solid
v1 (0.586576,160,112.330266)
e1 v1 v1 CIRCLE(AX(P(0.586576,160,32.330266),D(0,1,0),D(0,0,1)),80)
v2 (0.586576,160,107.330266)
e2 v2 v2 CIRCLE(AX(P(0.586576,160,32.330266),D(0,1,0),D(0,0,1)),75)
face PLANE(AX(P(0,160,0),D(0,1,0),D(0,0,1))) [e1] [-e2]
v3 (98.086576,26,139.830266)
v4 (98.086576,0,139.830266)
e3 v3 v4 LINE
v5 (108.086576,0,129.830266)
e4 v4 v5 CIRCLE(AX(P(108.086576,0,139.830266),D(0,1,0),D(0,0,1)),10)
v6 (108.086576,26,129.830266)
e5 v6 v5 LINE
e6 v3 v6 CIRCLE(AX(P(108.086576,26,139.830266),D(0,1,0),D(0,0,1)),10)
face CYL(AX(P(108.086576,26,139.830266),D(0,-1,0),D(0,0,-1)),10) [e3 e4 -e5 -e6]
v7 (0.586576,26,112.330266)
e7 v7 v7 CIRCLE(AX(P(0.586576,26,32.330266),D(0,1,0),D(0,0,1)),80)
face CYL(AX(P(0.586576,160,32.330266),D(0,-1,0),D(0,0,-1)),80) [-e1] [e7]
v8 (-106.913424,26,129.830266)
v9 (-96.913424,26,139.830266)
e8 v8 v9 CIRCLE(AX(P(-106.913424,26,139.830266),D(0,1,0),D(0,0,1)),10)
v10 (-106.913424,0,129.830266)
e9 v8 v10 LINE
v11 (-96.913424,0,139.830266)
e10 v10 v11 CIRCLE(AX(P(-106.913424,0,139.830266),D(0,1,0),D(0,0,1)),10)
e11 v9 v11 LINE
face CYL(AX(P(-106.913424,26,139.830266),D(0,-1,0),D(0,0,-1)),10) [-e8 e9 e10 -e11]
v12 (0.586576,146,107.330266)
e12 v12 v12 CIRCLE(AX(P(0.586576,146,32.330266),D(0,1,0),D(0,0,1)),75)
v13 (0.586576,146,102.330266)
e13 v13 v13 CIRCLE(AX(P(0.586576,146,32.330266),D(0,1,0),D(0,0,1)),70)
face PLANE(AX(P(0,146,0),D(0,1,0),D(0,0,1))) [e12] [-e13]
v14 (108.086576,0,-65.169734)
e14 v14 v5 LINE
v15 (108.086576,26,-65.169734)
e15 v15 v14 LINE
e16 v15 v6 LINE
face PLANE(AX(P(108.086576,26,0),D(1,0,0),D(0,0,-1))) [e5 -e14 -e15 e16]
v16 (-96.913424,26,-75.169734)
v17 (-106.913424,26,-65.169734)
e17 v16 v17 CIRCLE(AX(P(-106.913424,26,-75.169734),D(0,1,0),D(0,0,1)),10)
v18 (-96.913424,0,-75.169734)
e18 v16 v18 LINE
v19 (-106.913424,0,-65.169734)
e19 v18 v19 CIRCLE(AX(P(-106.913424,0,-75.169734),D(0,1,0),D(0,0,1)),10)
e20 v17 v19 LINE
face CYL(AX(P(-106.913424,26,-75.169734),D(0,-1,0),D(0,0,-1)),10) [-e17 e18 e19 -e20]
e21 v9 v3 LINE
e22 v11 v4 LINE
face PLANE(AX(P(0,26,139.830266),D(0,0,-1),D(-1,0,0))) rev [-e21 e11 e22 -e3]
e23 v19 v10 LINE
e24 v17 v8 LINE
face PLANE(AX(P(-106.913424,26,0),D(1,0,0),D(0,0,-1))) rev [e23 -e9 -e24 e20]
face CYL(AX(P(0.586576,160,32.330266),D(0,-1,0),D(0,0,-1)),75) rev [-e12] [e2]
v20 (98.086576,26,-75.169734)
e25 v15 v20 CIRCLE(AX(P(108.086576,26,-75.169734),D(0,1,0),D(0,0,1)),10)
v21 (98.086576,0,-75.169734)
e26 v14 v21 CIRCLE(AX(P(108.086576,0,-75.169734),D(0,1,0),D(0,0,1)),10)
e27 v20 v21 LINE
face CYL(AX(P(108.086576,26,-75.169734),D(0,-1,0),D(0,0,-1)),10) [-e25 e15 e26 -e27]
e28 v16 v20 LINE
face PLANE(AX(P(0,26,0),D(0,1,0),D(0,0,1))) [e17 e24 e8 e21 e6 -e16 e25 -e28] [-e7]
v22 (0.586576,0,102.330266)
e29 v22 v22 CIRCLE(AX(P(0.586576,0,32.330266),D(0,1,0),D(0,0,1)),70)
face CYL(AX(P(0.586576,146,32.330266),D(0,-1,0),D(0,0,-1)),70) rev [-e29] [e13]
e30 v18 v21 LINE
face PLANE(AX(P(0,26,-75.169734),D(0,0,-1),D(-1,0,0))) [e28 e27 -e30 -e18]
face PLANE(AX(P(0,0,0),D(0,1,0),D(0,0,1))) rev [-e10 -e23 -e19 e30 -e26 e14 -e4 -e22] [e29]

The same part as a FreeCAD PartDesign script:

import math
import FreeCAD as App
import Part
import Sketcher

V = App.Vector

doc = App.newDocument("Part")
params = doc.addObject("Spreadsheet::Sheet", "Params")
for row, (alias, value) in enumerate([
    ("sketch1_diameter", "160 mm"),
    ("sketch1_radius", "10 mm"),
    ("sketch1_width", "195 mm"),
    ("pad1_length", "26 mm"),
    ("sketch2_diameter", "160 mm"),
    ("sketch2_diameter2", "150 mm"),
    ("pad2_length", "160 mm"),
    ("sketch3_diameter", "150 mm"),
    ("sketch3_diameter2", "140 mm"),
    ("pad3_length", "146 mm"),
], start=1):
    params.set(f"A{row}", alias)
    params.set(f"B{row}", "=" + value)
    params.setAlias(f"B{row}", alias)

body = doc.addObject("PartDesign::Body", "Body")

sketch1 = doc.addObject("Sketcher::SketchObject", "Sketch")
body.addObject(sketch1)
sketch1.AttachmentSupport = (doc.XZ_Plane, [""])
sketch1.MapMode = "FlatFace"
sketch1.addGeometry([
    Part.LineSegment(V(108, 130, 0), V(108, -65, 0)),
    Part.ArcOfCircle(Part.Circle(V(108, -75, 0), V(0, 0, 1), 10), math.radians(180), math.radians(450)),
    Part.LineSegment(V(98, -75, 0), V(-97, -75, 0)),
    Part.ArcOfCircle(Part.Circle(V(-107, -75, 0), V(0, 0, 1), 10), math.radians(90), math.radians(360)),
    Part.LineSegment(V(-107, -65, 0), V(-107, 130, 0)),
    Part.ArcOfCircle(Part.Circle(V(-107, 140, 0), V(0, 0, 1), 10), math.radians(0), math.radians(270)),
    Part.LineSegment(V(-97, 140, 0), V(98, 140, 0)),
    Part.ArcOfCircle(Part.Circle(V(108, 140, 0), V(0, 0, 1), 10), math.radians(-90), math.radians(180)),
    Part.Circle(V(1, 32, 0), V(0, 0, 1), 80),
], False)
sketch1.addConstraint([
    Sketcher.Constraint("Coincident", 0, 2, 1, 2),
    Sketcher.Constraint("Coincident", 1, 1, 2, 1),
    Sketcher.Constraint("Coincident", 2, 2, 3, 2),
    Sketcher.Constraint("Coincident", 3, 1, 4, 1),
    Sketcher.Constraint("Coincident", 4, 2, 5, 2),
    Sketcher.Constraint("Coincident", 5, 1, 6, 1),
    Sketcher.Constraint("Coincident", 6, 2, 7, 2),
    Sketcher.Constraint("Coincident", 7, 1, 0, 1),
    Sketcher.Constraint("Vertical", 0),
    Sketcher.Constraint("Horizontal", 2),
    Sketcher.Constraint("Vertical", 4),
    Sketcher.Constraint("Horizontal", 6),
    Sketcher.Constraint("Equal", 1, 3),
    Sketcher.Constraint("Equal", 3, 5),
    Sketcher.Constraint("Equal", 5, 7),
    Sketcher.Constraint("Horizontal", 1, 3, 3, 3),
    Sketcher.Constraint("Horizontal", 5, 3, 7, 3),
    Sketcher.Constraint("Horizontal", 3, 3, 1, 1),
    Sketcher.Constraint("Horizontal", 7, 3, 5, 1),
    Sketcher.Constraint("Vertical", 3, 3, 5, 3),
    Sketcher.Constraint("Vertical", 1, 3, 7, 3),
    Sketcher.Constraint("Vertical", 7, 3, 0, 2),
    Sketcher.Constraint("Vertical", 5, 3, 3, 1),
    Sketcher.Constraint("Equal", 6, 0),
    Sketcher.Constraint("Diameter", 8, 160.0),
    Sketcher.Constraint("Radius", 1, 10.0),
    Sketcher.Constraint("DistanceX", 2, 2, 2, 1, 195.0),
    Sketcher.Constraint("DistanceX", 8, 3, 1, 3, 107.5),
    Sketcher.Constraint("DistanceY", 1, 3, 8, 3, 107.5),
    Sketcher.Constraint("DistanceX", -1, 1, 1, 3, 108.086576),
    Sketcher.Constraint("DistanceY", 1, 3, -1, 1, 75.169734),
])
sketch1.setExpression("Constraints[24]", "Params.sketch1_diameter")
sketch1.setExpression("Constraints[25]", "Params.sketch1_radius")
sketch1.setExpression("Constraints[26]", "Params.sketch1_width")
pad1 = doc.addObject("PartDesign::Pad", "Pad")
body.addObject(pad1)
pad1.Profile = sketch1
pad1.setExpression("Length", "Params.pad1_length")
pad1.Reversed = True

sketch2 = doc.addObject("Sketcher::SketchObject", "Sketch001")
body.addObject(sketch2)
sketch2.AttachmentSupport = (doc.XZ_Plane, [""])
sketch2.MapMode = "FlatFace"
sketch2.addGeometry([
    Part.Circle(V(1, 32, 0), V(0, 0, 1), 80),
    Part.Circle(V(1, 32, 0), V(0, 0, 1), 75),
], False)
sketch2.addConstraint([
    Sketcher.Constraint("Coincident", 1, 3, 0, 3),
    Sketcher.Constraint("Diameter", 0, 160.0),
    Sketcher.Constraint("Diameter", 1, 150.0),
    Sketcher.Constraint("DistanceX", -1, 1, 0, 3, 0.586576),
    Sketcher.Constraint("DistanceY", -1, 1, 0, 3, 32.330266),
])
sketch2.setExpression("Constraints[1]", "Params.sketch2_diameter")
sketch2.setExpression("Constraints[2]", "Params.sketch2_diameter2")
pad2 = doc.addObject("PartDesign::Pad", "Pad001")
body.addObject(pad2)
pad2.Profile = sketch2
pad2.setExpression("Length", "Params.pad2_length")
pad2.Reversed = True

sketch3 = doc.addObject("Sketcher::SketchObject", "Sketch002")
body.addObject(sketch3)
sketch3.AttachmentSupport = (doc.XZ_Plane, [""])
sketch3.MapMode = "FlatFace"
sketch3.addGeometry([
    Part.Circle(V(1, 32, 0), V(0, 0, 1), 75),
    Part.Circle(V(1, 32, 0), V(0, 0, 1), 70),
], False)
sketch3.addConstraint([
    Sketcher.Constraint("Coincident", 1, 3, 0, 3),
    Sketcher.Constraint("Diameter", 0, 150.0),
    Sketcher.Constraint("Diameter", 1, 140.0),
    Sketcher.Constraint("DistanceX", -1, 1, 0, 3, 0.586576),
    Sketcher.Constraint("DistanceY", -1, 1, 0, 3, 32.330266),
])
sketch3.setExpression("Constraints[1]", "Params.sketch3_diameter")
sketch3.setExpression("Constraints[2]", "Params.sketch3_diameter2")
pad3 = doc.addObject("PartDesign::Pad", "Pad002")
body.addObject(pad3)
pad3.Profile = sketch3
pad3.setExpression("Length", "Params.pad3_length")
pad3.Reversed = True

doc.recompute()
